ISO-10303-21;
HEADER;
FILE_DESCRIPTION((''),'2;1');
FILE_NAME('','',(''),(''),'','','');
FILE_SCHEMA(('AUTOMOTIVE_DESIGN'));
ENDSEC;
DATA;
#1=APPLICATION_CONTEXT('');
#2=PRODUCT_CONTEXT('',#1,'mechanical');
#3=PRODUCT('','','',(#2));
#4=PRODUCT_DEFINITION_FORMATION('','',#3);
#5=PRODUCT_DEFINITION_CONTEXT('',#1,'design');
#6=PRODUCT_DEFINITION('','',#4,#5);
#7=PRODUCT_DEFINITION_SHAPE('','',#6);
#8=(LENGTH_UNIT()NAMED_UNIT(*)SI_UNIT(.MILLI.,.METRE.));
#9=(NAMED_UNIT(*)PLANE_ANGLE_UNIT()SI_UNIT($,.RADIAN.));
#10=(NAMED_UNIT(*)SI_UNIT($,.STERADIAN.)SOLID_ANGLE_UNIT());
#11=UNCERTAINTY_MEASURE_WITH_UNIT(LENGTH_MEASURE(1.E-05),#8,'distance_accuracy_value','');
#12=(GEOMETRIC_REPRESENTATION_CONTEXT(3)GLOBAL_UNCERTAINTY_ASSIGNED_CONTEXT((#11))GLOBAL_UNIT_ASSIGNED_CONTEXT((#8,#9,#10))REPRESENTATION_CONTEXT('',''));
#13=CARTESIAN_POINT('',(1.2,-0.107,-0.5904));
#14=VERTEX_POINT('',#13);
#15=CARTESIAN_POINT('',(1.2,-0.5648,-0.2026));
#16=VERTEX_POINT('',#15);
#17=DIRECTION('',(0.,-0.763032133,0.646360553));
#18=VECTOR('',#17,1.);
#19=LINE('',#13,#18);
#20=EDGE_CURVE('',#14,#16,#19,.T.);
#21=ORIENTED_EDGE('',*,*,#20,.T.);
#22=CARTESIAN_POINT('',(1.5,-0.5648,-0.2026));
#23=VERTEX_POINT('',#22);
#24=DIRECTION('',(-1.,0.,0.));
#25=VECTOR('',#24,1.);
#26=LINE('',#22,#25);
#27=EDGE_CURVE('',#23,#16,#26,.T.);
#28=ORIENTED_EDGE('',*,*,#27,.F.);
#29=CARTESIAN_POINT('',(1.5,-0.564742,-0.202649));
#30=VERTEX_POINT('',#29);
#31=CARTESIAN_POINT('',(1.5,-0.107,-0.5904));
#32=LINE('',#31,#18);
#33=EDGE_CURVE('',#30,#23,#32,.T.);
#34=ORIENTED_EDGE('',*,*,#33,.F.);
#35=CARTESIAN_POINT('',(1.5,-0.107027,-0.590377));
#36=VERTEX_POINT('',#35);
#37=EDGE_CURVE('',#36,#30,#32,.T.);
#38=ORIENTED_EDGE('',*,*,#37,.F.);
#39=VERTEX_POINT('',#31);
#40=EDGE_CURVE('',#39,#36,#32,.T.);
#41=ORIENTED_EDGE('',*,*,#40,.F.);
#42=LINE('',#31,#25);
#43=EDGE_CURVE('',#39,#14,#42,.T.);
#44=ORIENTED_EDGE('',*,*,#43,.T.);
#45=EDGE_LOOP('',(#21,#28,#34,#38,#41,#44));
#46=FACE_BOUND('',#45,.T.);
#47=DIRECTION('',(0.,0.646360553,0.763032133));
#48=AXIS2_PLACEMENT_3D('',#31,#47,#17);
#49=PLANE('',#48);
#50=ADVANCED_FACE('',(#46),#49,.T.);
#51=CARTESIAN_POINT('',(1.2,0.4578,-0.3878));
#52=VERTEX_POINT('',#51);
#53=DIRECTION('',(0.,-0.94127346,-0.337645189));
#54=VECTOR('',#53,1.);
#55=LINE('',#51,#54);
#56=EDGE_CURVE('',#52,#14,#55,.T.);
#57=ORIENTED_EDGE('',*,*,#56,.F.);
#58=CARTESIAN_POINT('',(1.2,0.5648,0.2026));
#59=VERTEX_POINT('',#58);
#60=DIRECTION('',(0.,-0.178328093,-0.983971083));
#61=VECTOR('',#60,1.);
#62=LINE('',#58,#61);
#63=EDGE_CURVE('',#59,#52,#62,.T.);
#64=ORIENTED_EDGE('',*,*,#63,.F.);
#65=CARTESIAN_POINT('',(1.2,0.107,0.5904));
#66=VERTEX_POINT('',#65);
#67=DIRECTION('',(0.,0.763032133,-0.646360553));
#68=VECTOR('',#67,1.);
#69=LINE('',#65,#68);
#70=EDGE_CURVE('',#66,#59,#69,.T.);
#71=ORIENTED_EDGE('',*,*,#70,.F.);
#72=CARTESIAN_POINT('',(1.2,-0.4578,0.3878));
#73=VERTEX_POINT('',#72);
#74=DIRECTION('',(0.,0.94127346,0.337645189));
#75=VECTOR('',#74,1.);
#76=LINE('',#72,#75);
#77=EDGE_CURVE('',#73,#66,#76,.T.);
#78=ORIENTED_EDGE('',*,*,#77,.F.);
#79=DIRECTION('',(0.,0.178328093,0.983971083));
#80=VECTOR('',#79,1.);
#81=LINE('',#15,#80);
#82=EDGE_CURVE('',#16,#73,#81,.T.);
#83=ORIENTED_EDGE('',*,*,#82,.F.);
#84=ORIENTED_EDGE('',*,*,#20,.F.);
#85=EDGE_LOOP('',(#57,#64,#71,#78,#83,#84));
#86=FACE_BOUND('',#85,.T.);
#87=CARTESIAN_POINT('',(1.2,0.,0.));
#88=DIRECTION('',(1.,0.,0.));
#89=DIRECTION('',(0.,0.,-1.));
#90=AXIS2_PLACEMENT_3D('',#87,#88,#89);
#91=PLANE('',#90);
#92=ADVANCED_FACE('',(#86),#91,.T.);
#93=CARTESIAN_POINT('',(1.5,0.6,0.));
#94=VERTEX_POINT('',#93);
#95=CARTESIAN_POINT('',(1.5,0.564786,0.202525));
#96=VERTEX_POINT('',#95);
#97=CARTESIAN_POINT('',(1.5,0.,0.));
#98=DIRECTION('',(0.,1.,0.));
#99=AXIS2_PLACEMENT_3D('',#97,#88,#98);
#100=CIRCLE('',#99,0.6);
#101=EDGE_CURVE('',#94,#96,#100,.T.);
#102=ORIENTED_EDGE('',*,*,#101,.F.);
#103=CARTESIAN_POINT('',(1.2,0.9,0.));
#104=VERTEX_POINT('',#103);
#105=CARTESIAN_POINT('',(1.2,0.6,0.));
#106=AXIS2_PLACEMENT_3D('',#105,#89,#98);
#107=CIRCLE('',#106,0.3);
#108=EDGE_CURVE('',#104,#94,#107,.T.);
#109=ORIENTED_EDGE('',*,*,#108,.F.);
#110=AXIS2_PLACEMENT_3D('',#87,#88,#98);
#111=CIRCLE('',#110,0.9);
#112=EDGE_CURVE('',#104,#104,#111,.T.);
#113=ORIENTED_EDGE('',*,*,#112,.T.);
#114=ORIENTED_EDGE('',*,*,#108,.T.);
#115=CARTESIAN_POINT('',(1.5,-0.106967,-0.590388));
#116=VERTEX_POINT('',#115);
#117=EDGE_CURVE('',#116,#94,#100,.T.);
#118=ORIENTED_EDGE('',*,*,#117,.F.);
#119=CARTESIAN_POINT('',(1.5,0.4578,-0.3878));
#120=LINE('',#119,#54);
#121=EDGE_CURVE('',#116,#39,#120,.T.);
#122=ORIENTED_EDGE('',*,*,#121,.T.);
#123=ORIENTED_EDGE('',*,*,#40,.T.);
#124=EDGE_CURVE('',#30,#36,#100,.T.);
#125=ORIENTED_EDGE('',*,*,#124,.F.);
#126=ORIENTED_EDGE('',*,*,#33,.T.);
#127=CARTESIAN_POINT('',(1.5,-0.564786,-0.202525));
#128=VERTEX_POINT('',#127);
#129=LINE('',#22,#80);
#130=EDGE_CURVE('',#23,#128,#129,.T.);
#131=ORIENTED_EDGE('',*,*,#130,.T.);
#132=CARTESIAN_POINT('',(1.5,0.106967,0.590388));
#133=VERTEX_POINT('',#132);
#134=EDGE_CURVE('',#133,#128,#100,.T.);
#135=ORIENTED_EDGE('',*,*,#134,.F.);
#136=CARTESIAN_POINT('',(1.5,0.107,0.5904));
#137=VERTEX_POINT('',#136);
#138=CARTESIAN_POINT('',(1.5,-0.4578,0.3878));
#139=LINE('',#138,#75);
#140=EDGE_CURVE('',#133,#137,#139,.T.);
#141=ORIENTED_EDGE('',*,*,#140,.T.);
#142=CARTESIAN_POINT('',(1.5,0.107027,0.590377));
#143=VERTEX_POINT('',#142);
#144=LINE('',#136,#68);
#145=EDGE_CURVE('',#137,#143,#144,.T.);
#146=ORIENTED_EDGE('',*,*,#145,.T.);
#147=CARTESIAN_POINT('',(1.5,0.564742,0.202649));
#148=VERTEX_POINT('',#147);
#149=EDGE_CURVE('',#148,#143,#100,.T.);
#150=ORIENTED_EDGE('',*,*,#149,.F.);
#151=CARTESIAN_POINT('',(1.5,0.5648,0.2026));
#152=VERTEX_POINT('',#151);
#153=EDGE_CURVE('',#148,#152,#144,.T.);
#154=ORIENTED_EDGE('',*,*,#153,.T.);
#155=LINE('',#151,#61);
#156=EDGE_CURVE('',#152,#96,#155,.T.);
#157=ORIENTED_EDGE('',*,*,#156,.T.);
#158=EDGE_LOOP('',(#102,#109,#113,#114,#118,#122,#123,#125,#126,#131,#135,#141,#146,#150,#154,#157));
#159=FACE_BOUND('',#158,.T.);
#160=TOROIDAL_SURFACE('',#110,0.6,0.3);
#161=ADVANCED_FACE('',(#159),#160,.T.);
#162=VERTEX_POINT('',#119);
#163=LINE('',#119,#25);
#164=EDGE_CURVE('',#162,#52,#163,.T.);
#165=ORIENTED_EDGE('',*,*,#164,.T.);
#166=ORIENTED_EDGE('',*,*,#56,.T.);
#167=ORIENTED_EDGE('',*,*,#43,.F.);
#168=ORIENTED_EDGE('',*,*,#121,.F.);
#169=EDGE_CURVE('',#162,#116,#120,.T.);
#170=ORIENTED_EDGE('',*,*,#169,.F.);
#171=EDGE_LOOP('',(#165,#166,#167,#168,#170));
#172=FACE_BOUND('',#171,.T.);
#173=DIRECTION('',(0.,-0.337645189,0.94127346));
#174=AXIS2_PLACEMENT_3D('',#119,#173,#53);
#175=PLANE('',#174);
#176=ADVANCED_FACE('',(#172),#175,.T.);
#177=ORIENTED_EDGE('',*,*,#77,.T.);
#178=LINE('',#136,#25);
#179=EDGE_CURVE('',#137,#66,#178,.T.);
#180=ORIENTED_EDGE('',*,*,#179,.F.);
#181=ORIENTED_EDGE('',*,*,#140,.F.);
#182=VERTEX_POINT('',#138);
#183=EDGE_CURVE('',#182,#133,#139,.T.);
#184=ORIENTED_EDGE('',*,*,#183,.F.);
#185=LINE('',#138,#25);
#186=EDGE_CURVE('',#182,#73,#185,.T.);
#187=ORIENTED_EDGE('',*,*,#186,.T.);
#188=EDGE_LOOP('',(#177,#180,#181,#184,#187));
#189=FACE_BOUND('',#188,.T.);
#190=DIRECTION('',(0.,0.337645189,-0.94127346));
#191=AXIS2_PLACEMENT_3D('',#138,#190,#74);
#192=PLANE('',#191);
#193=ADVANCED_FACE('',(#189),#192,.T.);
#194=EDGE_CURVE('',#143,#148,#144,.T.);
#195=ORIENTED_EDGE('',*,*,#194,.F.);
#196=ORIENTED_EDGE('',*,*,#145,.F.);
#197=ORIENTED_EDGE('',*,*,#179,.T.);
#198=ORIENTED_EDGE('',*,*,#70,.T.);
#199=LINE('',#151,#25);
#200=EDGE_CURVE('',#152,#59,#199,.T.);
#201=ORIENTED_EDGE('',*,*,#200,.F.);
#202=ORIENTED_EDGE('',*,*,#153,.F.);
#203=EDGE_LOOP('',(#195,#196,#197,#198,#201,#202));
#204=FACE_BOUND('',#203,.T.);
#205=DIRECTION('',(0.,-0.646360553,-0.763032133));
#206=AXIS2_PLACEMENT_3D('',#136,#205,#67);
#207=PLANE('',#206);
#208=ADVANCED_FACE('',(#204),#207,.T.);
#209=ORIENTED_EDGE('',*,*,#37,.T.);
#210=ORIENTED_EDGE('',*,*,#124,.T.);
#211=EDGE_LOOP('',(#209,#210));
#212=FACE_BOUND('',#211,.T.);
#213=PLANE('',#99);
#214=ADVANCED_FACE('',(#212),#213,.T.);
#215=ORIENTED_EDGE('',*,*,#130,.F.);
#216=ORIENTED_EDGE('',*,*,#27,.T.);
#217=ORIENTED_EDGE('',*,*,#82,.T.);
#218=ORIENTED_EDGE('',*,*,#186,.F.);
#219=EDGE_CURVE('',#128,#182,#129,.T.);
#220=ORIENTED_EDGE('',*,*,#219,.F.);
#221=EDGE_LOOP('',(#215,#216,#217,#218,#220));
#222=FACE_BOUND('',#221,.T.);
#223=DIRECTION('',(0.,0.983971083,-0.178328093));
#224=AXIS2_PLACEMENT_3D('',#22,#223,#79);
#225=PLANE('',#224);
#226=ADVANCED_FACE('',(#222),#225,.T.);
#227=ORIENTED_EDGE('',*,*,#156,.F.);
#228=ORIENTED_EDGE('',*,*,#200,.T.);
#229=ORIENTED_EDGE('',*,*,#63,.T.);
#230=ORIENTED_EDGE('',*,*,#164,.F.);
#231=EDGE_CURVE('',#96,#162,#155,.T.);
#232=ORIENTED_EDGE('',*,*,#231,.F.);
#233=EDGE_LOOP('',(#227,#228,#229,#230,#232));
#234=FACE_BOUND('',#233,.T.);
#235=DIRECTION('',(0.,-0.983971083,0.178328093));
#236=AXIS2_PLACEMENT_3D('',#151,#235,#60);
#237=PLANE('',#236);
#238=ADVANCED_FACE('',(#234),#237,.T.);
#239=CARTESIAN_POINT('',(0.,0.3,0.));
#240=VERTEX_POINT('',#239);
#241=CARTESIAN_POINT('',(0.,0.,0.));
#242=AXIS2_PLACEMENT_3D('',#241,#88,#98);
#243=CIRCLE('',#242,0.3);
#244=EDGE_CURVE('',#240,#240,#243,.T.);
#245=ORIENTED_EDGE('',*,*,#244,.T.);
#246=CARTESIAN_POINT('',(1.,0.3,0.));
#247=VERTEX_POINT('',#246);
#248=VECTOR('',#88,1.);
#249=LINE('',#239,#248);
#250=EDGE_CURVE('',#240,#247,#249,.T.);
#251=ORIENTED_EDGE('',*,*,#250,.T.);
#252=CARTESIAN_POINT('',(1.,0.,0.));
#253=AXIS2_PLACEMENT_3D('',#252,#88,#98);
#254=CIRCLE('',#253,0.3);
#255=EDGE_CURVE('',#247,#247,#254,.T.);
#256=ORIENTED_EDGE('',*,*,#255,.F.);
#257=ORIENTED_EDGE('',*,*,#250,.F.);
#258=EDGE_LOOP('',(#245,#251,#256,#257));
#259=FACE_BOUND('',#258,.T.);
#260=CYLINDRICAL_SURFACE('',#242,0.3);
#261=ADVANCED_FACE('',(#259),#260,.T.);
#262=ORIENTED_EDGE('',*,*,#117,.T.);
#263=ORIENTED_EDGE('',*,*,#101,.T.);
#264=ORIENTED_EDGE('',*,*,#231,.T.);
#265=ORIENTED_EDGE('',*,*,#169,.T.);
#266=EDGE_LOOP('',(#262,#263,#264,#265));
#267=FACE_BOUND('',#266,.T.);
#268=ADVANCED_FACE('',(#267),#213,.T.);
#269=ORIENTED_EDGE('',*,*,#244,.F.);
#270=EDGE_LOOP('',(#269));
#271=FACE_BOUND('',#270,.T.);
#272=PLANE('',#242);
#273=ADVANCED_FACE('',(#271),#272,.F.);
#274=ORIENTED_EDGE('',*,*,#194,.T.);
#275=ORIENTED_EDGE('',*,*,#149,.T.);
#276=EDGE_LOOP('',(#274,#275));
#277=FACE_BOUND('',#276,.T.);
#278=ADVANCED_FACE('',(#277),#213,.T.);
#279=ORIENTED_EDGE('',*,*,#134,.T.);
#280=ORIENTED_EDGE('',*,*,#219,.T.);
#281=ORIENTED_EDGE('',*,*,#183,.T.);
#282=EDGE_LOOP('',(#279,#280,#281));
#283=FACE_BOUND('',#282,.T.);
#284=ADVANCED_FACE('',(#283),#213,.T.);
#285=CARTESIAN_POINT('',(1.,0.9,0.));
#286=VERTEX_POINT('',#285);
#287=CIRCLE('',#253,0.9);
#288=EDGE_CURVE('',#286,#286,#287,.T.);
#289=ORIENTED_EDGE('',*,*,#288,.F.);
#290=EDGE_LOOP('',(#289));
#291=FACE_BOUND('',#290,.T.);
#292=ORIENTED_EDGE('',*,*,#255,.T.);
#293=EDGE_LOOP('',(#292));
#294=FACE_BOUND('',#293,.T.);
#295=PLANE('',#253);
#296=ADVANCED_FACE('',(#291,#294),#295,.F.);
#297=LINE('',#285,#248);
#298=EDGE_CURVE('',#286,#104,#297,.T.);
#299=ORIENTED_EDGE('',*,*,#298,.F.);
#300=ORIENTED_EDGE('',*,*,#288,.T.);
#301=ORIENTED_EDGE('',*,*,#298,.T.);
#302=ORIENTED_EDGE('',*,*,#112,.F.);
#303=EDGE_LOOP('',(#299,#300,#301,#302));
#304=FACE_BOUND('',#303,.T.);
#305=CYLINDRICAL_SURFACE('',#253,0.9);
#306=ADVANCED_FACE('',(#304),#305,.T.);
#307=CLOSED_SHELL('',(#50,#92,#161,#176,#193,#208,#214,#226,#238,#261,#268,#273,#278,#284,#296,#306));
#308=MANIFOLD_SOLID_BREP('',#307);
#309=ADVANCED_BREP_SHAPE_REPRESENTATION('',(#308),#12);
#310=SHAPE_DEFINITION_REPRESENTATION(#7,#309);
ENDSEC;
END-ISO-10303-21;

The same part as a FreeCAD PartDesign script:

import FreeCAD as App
import Part
import Sketcher
Q = App.Units.Quantity


def edges_at(feature, points):
    """Names of the edges that pass closest to the given points."""
    edges = feature.Shape.Edges
    near = lambda p: min(range(len(edges)), key=lambda i: edges[i].distToShape(Part.Vertex(*p))[0])
    return sorted({f"Edge{near(p) + 1}" for p in points})


def add_polygon(sketch, points):
    """Adds a closed chain of lines whose ends are joined by coincident constraints."""
    first, n = sketch.GeometryCount, len(points)
    for a, b in zip(points, points[1:] + points[:1]):
        sketch.addGeometry(Part.LineSegment(App.Vector(*a, 0), App.Vector(*b, 0)), False)
    for i in range(n):
        sketch.addConstraint(Sketcher.Constraint("Coincident", first + i, 2, first + (i + 1) % n, 1))

doc = App.newDocument("Part")
params = doc.addObject("Spreadsheet::Sheet", "Params")
for row, (alias, value) in enumerate([
    ("sketch1_width", "1 mm"),
    ("sketch1_width2", "0.5 mm"),
    ("sketch1_height", "0.3 mm"),
    ("sketch1_height2", "0.6 mm"),
    ("revolution_angle", "360 deg"),
    ("fillet_radius", "0.3 mm"),
    ("sketch2_length", "0.6 mm"),
    ("pocket1_length", "0.3 mm"),
], start=1):
    params.set(f"A{row}", alias)
    params.set(f"B{row}", "=" + value)
    params.setAlias(f"B{row}", alias)

body = doc.addObject("PartDesign::Body", "Body")

# Sketch on XY plane
sketch1 = body.newObject("Sketcher::SketchObject", "Sketch")
sketch1.AttachmentSupport = (doc.getObject("XY_Plane"), [""])
sketch1.MapMode = "FlatFace"
add_polygon(sketch1, [(0, 0.3), (0, 0), (1.5, 0), (1.5, 0.9), (1, 0.9), (1, 0.3)])  # lines 0-5
sketch1.addConstraint([
    Sketcher.Constraint("Vertical", 0),
    Sketcher.Constraint("Horizontal", 1),
    Sketcher.Constraint("Vertical", 2),
    Sketcher.Constraint("Horizontal", 3),
    Sketcher.Constraint("Vertical", 4),
    Sketcher.Constraint("Horizontal", 5),
    Sketcher.Constraint("Coincident", 0, 2, -1, 1),
    Sketcher.Constraint("DistanceX", 5, 2, 5, 1, Q("1 mm")),
    Sketcher.Constraint("DistanceX", 3, 2, 3, 1, Q("0.5 mm")),
    Sketcher.Constraint("DistanceY", 0, 2, 0, 1, Q("0.3 mm")),
    Sketcher.Constraint("DistanceY", 4, 2, 4, 1, Q("0.6 mm")),
])
sketch1.setExpression("Constraints[13]", "Params.sketch1_width")
sketch1.setExpression("Constraints[14]", "Params.sketch1_width2")
sketch1.setExpression("Constraints[15]", "Params.sketch1_height")
sketch1.setExpression("Constraints[16]", "Params.sketch1_height2")
revolution = body.newObject("PartDesign::Revolution", "Revolution")
revolution.Profile = sketch1
revolution.ReferenceAxis = (sketch1, ["H_Axis"])
revolution.setExpression("Angle", "Params.revolution_angle")
doc.recompute()

fillet = body.newObject("PartDesign::Fillet", "Fillet")
fillet.Base = (revolution, edges_at(revolution, [(1.5, -0.9, 0)]))
fillet.setExpression("Radius", "Params.fillet_radius")

# Sketch on YZ plane
sketch2 = body.newObject("Sketcher::SketchObject", "Sketch001")
sketch2.AttachmentSupport = (doc.getObject("YZ_Plane"), [""])
sketch2.MapMode = "FlatFace"
sketch2.AttachmentOffset = App.Placement(App.Vector(0, 0, 1.5), App.Rotation())
add_polygon(sketch2, [(-0.4578, 0.3878), (-0.5648, -0.2026), (-0.107, -0.5904), (0.4578, -0.3878), (0.5648, 0.2026), (0.107, 0.5904)])  # lines 0-5
sketch2.addConstraint([
    Sketcher.Constraint("Symmetric", 0, 2, 3, 2, -1, 1),
    Sketcher.Constraint("Symmetric", 1, 2, 4, 2, -1, 1),
    Sketcher.Constraint("Symmetric", 2, 2, 5, 2, -1, 1),
    Sketcher.Constraint("Equal", 0, 1),
    Sketcher.Constraint("Equal", 1, 2),
    Sketcher.Constraint("Distance", 0, Q("0.6 mm")),
    Sketcher.Constraint("DistanceX", -1, 1, 2, 2, Q("0.4578 mm")),
    Sketcher.Constraint("DistanceX", 0, 2, 1, 2, Q("0.4578 mm")),
    Sketcher.Constraint("DistanceX", 1, 2, -1, 1, Q("0.107 mm")),
])
sketch2.setExpression("Constraints[11]", "Params.sketch2_length")
pocket1 = body.newObject("PartDesign::Pocket", "Pocket")
pocket1.Profile = sketch2
pocket1.setExpression("Length", "Params.pocket1_length")

doc.recompute()
